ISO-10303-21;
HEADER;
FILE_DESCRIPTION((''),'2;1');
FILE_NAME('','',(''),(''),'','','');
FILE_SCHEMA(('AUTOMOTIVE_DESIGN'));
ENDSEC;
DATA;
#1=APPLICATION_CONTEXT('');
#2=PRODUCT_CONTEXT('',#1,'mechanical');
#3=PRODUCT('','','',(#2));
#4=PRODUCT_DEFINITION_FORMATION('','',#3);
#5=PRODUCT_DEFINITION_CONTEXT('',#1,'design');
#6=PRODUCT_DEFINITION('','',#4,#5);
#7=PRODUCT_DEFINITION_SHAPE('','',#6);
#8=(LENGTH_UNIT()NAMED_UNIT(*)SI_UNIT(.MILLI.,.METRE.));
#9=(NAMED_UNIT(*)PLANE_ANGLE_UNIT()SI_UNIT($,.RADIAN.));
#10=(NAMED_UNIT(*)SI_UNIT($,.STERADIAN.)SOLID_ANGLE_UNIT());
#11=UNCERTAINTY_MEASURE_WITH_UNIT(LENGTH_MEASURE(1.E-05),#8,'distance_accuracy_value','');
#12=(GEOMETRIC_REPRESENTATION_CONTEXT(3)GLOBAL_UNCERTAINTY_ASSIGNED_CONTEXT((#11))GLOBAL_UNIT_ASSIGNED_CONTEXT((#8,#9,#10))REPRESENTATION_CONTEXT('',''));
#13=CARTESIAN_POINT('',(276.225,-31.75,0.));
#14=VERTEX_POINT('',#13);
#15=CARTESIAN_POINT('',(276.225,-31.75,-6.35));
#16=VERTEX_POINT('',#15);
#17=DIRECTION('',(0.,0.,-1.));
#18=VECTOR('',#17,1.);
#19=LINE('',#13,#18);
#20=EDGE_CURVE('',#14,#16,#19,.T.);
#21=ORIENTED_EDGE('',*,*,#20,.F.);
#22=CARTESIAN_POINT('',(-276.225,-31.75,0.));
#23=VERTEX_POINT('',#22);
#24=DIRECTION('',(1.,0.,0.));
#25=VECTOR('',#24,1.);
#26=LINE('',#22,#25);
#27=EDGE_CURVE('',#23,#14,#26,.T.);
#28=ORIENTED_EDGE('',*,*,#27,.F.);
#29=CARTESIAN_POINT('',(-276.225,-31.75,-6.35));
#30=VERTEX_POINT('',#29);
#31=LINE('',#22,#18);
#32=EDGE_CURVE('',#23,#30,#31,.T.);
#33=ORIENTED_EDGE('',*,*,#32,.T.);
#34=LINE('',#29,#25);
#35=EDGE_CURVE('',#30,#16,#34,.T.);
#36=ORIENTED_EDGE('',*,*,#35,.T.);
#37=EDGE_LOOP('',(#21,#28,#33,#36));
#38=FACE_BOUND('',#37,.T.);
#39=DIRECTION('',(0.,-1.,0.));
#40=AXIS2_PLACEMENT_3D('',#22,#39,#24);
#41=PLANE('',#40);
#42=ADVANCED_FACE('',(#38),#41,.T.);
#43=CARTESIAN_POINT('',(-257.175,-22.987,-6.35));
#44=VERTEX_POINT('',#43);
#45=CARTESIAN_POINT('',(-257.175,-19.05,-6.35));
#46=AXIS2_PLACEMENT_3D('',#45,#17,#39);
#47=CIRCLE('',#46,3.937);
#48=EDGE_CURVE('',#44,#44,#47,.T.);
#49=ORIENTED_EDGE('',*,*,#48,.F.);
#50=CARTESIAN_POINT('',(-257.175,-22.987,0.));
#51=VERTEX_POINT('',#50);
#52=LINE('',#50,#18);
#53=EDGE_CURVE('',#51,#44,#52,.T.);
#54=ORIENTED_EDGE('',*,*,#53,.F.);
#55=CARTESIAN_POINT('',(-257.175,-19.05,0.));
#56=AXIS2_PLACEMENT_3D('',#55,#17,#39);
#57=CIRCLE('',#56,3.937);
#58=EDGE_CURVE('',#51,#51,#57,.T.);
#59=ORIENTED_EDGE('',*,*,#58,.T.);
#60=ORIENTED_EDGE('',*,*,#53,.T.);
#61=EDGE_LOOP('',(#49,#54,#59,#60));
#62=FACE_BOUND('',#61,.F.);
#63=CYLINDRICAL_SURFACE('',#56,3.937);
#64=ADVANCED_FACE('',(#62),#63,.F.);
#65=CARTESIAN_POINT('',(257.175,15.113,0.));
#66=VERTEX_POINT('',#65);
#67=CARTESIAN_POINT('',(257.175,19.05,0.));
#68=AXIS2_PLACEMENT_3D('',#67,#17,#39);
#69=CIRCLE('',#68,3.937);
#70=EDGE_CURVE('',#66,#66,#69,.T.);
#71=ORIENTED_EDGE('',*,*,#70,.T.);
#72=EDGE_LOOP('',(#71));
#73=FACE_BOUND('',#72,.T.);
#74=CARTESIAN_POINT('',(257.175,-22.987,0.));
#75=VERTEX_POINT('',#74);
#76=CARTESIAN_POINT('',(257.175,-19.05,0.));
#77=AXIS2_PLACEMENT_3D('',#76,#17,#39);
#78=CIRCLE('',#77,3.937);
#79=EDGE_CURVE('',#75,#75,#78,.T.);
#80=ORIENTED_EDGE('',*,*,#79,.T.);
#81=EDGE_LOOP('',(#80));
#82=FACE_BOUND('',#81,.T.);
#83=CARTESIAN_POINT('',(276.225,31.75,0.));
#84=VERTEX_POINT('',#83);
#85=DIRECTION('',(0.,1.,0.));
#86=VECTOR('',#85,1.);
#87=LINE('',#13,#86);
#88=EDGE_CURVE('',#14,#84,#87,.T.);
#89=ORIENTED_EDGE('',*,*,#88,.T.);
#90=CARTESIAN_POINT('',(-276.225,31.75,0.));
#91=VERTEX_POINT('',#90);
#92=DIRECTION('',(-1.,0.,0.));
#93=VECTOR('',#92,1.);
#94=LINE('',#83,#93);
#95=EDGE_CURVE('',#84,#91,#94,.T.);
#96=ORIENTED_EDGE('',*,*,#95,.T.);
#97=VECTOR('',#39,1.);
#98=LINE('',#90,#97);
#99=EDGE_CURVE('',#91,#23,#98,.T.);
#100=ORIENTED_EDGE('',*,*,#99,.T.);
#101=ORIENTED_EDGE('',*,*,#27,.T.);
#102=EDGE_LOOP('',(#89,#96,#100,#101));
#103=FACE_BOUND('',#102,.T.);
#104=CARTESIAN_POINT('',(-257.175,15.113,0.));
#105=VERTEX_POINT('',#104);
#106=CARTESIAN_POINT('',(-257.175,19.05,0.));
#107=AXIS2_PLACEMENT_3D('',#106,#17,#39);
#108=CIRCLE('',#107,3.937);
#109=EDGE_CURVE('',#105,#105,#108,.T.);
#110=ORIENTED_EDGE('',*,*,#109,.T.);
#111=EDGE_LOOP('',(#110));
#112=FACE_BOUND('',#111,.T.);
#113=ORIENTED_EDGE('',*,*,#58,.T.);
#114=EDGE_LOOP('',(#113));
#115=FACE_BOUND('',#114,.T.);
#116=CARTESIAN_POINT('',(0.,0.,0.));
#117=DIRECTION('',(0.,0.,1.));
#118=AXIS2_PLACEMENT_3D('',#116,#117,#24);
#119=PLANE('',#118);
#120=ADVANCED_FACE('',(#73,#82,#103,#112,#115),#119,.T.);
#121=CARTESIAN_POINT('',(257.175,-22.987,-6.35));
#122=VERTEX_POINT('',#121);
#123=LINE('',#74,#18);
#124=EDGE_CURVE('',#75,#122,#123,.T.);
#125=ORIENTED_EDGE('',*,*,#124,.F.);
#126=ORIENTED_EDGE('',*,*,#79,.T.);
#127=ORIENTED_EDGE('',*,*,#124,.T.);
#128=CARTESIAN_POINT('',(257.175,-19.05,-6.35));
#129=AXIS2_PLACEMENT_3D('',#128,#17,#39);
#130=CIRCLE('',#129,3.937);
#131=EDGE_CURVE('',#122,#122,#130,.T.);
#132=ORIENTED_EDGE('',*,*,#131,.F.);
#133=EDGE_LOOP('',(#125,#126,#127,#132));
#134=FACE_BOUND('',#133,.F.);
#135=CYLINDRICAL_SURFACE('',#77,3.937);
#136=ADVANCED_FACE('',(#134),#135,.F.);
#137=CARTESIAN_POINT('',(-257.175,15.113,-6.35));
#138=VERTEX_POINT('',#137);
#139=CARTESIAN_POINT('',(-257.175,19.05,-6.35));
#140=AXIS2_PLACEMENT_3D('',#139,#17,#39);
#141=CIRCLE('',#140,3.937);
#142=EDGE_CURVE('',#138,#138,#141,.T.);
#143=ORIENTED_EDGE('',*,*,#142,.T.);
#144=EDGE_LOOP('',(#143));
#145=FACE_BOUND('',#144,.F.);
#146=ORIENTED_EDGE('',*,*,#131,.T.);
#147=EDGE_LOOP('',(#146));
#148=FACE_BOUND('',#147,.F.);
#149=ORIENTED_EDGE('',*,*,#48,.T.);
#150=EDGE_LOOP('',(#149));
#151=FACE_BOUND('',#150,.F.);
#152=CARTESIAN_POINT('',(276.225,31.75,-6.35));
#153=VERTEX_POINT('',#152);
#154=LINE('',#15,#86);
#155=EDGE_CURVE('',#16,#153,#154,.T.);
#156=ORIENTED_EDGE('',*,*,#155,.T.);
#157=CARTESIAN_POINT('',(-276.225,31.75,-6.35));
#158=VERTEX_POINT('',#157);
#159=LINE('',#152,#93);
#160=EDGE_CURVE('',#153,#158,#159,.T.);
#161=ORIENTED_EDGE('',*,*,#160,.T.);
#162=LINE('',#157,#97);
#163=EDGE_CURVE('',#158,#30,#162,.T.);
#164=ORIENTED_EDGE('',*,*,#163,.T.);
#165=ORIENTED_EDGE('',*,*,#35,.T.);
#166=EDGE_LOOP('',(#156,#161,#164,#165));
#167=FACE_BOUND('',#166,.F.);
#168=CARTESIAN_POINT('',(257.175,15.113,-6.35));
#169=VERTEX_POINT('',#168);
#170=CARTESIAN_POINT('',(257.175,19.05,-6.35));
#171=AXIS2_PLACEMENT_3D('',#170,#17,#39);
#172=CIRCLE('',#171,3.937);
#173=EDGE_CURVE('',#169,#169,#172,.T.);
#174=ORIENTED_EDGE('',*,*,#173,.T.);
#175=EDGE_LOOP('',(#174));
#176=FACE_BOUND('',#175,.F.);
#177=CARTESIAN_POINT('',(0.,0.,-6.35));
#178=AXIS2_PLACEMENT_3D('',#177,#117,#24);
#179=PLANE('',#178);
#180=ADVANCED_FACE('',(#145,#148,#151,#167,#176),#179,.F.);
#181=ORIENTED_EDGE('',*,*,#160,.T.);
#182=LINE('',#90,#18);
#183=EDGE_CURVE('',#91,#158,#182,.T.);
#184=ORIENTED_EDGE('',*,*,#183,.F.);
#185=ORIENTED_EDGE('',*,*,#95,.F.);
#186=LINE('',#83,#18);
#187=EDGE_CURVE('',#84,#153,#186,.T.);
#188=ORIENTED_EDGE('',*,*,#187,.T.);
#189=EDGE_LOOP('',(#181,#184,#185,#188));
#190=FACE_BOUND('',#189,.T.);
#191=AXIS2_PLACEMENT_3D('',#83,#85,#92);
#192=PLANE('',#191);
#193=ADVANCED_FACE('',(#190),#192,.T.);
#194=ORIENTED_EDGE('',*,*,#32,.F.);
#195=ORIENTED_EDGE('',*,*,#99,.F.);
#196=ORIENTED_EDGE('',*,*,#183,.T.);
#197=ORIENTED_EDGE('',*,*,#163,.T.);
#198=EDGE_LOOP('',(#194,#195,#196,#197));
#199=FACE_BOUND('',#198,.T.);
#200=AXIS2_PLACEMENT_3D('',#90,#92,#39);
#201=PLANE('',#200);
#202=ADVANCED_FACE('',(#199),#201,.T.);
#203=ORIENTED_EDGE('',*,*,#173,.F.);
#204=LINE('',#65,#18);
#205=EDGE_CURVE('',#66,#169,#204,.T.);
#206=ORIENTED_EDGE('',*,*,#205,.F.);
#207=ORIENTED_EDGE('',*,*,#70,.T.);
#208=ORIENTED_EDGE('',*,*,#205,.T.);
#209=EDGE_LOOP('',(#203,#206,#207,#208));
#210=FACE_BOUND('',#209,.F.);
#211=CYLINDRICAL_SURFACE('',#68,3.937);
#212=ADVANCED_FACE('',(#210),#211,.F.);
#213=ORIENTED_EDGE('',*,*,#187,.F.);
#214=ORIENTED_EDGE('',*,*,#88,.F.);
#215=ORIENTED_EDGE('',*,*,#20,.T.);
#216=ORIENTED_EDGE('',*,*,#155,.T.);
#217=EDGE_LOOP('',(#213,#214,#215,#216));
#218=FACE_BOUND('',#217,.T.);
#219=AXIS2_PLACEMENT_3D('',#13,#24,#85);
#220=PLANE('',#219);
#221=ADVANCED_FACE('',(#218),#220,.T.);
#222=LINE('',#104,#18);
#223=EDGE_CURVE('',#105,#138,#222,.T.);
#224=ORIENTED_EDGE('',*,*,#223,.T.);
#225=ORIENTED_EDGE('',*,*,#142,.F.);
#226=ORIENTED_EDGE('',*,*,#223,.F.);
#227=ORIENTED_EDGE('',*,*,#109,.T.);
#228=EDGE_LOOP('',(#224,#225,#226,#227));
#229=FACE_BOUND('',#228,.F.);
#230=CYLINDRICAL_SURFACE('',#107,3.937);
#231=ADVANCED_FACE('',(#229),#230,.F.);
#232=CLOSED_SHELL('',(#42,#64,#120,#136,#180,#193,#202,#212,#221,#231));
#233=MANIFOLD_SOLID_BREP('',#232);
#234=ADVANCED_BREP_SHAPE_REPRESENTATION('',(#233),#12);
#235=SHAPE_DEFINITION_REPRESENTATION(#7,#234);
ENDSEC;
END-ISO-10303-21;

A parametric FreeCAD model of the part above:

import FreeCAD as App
import Part
import Sketcher

V = App.Vector
Q = App.Units.Quantity

doc = App.newDocument("Part")
body = doc.addObject("PartDesign::Body", "Body")

# Sketch on XY plane
sketch1 = body.newObject("Sketcher::SketchObject", "Sketch")
sketch1.AttachmentSupport = (doc.getObject("XY_Plane"), [""])
sketch1.MapMode = "FlatFace"
sketch1.addGeometry([
    Part.LineSegment(V(-276, 32, 0), V(-276, -32, 0)),
    Part.LineSegment(V(-276, -32, 0), V(276, -32, 0)),
    Part.LineSegment(V(276, -32, 0), V(276, 32, 0)),
    Part.LineSegment(V(276, 32, 0), V(-276, 32, 0)),
], False)
sketch1.addConstraint([
    Sketcher.Constraint("Coincident", 0, 2, 1, 1),
    Sketcher.Constraint("Coincident", 1, 2, 2, 1),
    Sketcher.Constraint("Coincident", 2, 2, 3, 1),
    Sketcher.Constraint("Coincident", 3, 2, 0, 1),
    Sketcher.Constraint("Vertical", 0),
    Sketcher.Constraint("Horizontal", 1),
    Sketcher.Constraint("Vertical", 2),
    Sketcher.Constraint("Horizontal", 3),
    Sketcher.Constraint("Symmetric", 0, 2, 2, 2, -1, 1),
    Sketcher.Constraint("DistanceY", 0, 2, 0, 1, Q("2.5 in")),
    Sketcher.Constraint("DistanceX", 1, 1, 1, 2, Q("21.75 in")),
])
pad1 = body.newObject("PartDesign::Pad", "Pad")
pad1.Profile = sketch1
pad1.Length = Q("0.25 in")
pad1.Reversed = True

# Sketch on XY plane
sketch2 = body.newObject("Sketcher::SketchObject", "Sketch001")
sketch2.AttachmentSupport = (doc.getObject("XY_Plane"), [""])
sketch2.MapMode = "FlatFace"
sketch2.addGeometry([
    Part.Circle(V(-257.2, 19.1, 0), V(0, 0, 1), 3.9),
    Part.Circle(V(-257.2, -19.1, 0), V(0, 0, 1), 3.9),
    Part.Circle(V(257.2, 19.1, 0), V(0, 0, 1), 3.9),
    Part.Circle(V(257.2, -19.1, 0), V(0, 0, 1), 3.9),
], False)
sketch2.addConstraint([
    Sketcher.Constraint("Equal", 0, 1),
    Sketcher.Constraint("Equal", 1, 2),
    Sketcher.Constraint("Equal", 2, 3),
    Sketcher.Constraint("Symmetric", 1, 3, 2, 3, -1, 1),
    Sketcher.Constraint("Symmetric", 0, 3, 3, 3, -1, 1),
    Sketcher.Constraint("Symmetric", 0, 3, 2, 3, -2),
    Sketcher.Constraint("Diameter", 0, Q("0.31 in")),
    Sketcher.Constraint("DistanceY", 1, 3, 0, 3, Q("1.5 in")),
    Sketcher.Constraint("DistanceX", 0, 3, 2, 3, Q("20.25 in")),
])
doc.recompute()
hole = body.newObject("PartDesign::Hole", "Hole")
hole.Profile = sketch2
hole.ThreadType = "None"
hole.Diameter = Q("0.31 in")
hole.DepthType = "ThroughAll"

doc.recompute()
